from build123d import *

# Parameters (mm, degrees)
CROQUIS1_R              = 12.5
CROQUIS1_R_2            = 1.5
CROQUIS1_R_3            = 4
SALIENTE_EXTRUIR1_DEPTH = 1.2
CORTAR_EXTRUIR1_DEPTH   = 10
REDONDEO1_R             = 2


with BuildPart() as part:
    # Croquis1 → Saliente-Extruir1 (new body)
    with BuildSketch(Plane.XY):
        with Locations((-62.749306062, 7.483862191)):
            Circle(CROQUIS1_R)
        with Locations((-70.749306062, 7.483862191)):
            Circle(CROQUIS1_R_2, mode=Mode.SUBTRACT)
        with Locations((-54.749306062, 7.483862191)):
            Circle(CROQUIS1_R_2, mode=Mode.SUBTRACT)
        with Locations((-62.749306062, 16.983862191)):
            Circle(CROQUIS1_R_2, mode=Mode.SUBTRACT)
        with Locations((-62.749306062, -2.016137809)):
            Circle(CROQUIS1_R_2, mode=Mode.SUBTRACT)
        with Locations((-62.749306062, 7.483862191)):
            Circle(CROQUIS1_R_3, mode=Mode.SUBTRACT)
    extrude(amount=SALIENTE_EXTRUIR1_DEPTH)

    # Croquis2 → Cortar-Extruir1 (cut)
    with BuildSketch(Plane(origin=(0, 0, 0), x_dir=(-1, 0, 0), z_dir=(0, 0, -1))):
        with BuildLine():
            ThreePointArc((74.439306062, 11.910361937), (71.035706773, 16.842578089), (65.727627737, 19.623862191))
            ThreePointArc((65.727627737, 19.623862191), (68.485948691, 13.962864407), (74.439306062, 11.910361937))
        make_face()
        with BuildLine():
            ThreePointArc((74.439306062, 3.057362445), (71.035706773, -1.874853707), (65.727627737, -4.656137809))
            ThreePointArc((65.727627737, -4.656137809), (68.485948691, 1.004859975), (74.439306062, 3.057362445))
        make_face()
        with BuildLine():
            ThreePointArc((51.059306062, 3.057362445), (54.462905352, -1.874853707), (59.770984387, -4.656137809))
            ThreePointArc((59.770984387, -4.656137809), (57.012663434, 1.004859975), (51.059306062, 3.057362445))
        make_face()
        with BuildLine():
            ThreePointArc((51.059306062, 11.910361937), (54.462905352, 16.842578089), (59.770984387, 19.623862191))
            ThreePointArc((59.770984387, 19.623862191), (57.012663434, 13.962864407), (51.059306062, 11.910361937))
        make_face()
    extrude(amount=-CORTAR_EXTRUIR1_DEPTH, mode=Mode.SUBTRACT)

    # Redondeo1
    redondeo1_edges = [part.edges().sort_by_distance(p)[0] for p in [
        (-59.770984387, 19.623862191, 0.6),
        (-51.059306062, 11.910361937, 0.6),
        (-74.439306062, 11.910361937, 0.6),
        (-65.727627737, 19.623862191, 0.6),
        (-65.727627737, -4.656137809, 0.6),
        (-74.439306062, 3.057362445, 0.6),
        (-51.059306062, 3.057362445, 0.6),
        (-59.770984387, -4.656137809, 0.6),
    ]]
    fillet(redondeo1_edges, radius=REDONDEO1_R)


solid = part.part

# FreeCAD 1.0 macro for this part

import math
import FreeCAD as App
import Part
import Sketcher
from FreeCAD import Vector


def edges_at(feature, points):
    """Names of the edges that pass closest to the given points."""
    edges = feature.Shape.Edges
    near = lambda p: min(range(len(edges)), key=lambda i: edges[i].distToShape(Part.Vertex(*p))[0])
    return sorted({f"Edge{near(p) + 1}" for p in points})

doc = App.newDocument("Part")
body = doc.addObject("PartDesign::Body", "Body")

# Sketch on XY plane
sketch1 = body.newObject("Sketcher::SketchObject", "Sketch")
sketch1.AttachmentSupport = (doc.getObject("XY_Plane"), [""])
sketch1.MapMode = "FlatFace"
sketch1.addGeometry(Part.Circle(Vector(-62.749306, 7.483862, 0), Vector(0, 0, 1), 12.5), False)
sketch1.addGeometry(Part.Circle(Vector(-62.749306, -2.016138, 0), Vector(0, 0, 1), 1.5), False)
sketch1.addGeometry(Part.Circle(Vector(-70.749306, 7.483862, 0), Vector(0, 0, 1), 1.5), False)
sketch1.addGeometry(Part.Circle(Vector(-62.749306, 7.483862, 0), Vector(0, 0, 1), 4), False)
sketch1.addGeometry(Part.Circle(Vector(-54.749306, 7.483862, 0), Vector(0, 0, 1), 1.5), False)
sketch1.addGeometry(Part.Circle(Vector(-62.749306, 16.983862, 0), Vector(0, 0, 1), 1.5), False)
sketch1.addConstraint(Sketcher.Constraint("Coincident", 3, 3, 0, 3))
sketch1.addConstraint(Sketcher.Constraint("Equal", 1, 2))
sketch1.addConstraint(Sketcher.Constraint("Equal", 2, 4))
sketch1.addConstraint(Sketcher.Constraint("Equal", 4, 5))
sketch1.addConstraint(Sketcher.Constraint("Horizontal", 0, 3, 2, 3))
sketch1.addConstraint(Sketcher.Constraint("Horizontal", 3, 3, 4, 3))
sketch1.addConstraint(Sketcher.Constraint("Vertical", 0, 3, 1, 3))
sketch1.addConstraint(Sketcher.Constraint("Vertical", 3, 3, 5, 3))
sketch1.addConstraint(Sketcher.Constraint("Diameter", 0, 25.0))
sketch1.addConstraint(Sketcher.Constraint("Diameter", 1, 3.0))
sketch1.addConstraint(Sketcher.Constraint("Diameter", 3, 8.0))
sketch1.addConstraint(Sketcher.Constraint("DistanceX", 2, 3, 0, 3, 8.0))
sketch1.addConstraint(Sketcher.Constraint("DistanceX", 0, 3, 4, 3, 8.0))
sketch1.addConstraint(Sketcher.Constraint("DistanceY", 1, 3, 5, 3, 19.0))
sketch1.addConstraint(Sketcher.Constraint("DistanceY", 1, 3, 0, 3, 9.5))
sketch1.addConstraint(Sketcher.Constraint("DistanceX", 0, 3, -1, 1, 62.749306))
sketch1.addConstraint(Sketcher.Constraint("DistanceY", -1, 1, 0, 3, 7.483862))
pad1 = body.newObject("PartDesign::Pad", "Pad")
pad1.Profile = sketch1
pad1.Length = 1.2

# Sketch on XY plane
sketch2 = body.newObject("Sketcher::SketchObject", "Sketch001")
sketch2.AttachmentSupport = (doc.getObject("XY_Plane"), [""])
sketch2.MapMode = "FlatFace"
sketch2.addGeometry(Part.ArcOfCircle(Part.Circle(Vector(-62.749306, 7.483862, 0), Vector(0, 0, 1), 12.5), math.radians(103.784205), math.radians(159.26048)), False)
sketch2.addGeometry(Part.ArcOfCircle(Part.Circle(Vector(-73.940217, 20.122951, 0), Vector(0, 0, 1), 8.22774), math.radians(-93.477657), math.radians(-3.477657)), False)
sketch2.addGeometry(Part.ArcOfCircle(Part.Circle(Vector(-62.749306, 7.483862, 0), Vector(0, 0, 1), 12.5), math.radians(-159.26048), math.radians(-103.784205)), False)
sketch2.addGeometry(Part.ArcOfCircle(Part.Circle(Vector(-73.940217, -5.155227, 0), Vector(0, 0, 1), 8.22774), math.radians(3.477657), math.radians(93.477657)), False)
sketch2.addGeometry(Part.ArcOfCircle(Part.Circle(Vector(-62.749306, 7.483862, 0), Vector(0, 0, 1), 12.5), math.radians(-76.215795), math.radians(-20.73952)), False)
sketch2.addGeometry(Part.ArcOfCircle(Part.Circle(Vector(-51.558395, -5.155227, 0), Vector(0, 0, 1), 8.22774), math.radians(86.522343), math.radians(176.522343)), False)
sketch2.addGeometry(Part.ArcOfCircle(Part.Circle(Vector(-62.749306, 7.483862, 0), Vector(0, 0, 1), 12.5), math.radians(20.73952), math.radians(76.215795)), False)
sketch2.addGeometry(Part.ArcOfCircle(Part.Circle(Vector(-51.558395, 20.122951, 0), Vector(0, 0, 1), 8.22774), math.radians(-176.522343), math.radians(-86.522343)), False)
sketch2.addConstraint(Sketcher.Constraint("Coincident", 0, 1, 1, 2))
sketch2.addConstraint(Sketcher.Constraint("Coincident", 1, 1, 0, 2))
sketch2.addConstraint(Sketcher.Constraint("Coincident", 2, 1, 3, 2))
sketch2.addConstraint(Sketcher.Constraint("Coincident", 3, 1, 2, 2))
sketch2.addConstraint(Sketcher.Constraint("Coincident", 4, 1, 5, 2))
sketch2.addConstraint(Sketcher.Constraint("Coincident", 5, 1, 4, 2))
sketch2.addConstraint(Sketcher.Constraint("Coincident", 6, 1, 7, 2))
sketch2.addConstraint(Sketcher.Constraint("Coincident", 7, 1, 6, 2))
sketch2.addConstraint(Sketcher.Constraint("Coincident", 2, 3, 0, 3))
sketch2.addConstraint(Sketcher.Constraint("Coincident", 4, 3, 0, 3))
sketch2.addConstraint(Sketcher.Constraint("Coincident", 6, 3, 0, 3))
sketch2.addConstraint(Sketcher.Constraint("Equal", 0, 2))
sketch2.addConstraint(Sketcher.Constraint("Equal", 1, 3))
sketch2.addConstraint(Sketcher.Constraint("Equal", 2, 4))
sketch2.addConstraint(Sketcher.Constraint("Equal", 3, 5))
sketch2.addConstraint(Sketcher.Constraint("Equal", 4, 6))
sketch2.addConstraint(Sketcher.Constraint("Equal", 5, 7))
sketch2.addConstraint(Sketcher.Constraint("Horizontal", 3, 3, 5, 3))
sketch2.addConstraint(Sketcher.Constraint("Horizontal", 1, 3, 7, 3))
sketch2.addConstraint(Sketcher.Constraint("Horizontal", 3, 1, 4, 1))
sketch2.addConstraint(Sketcher.Constraint("Horizontal", 1, 1, 6, 1))
sketch2.addConstraint(Sketcher.Constraint("Vertical", 1, 3, 3, 3))
sketch2.addConstraint(Sketcher.Constraint("Vertical", 1, 1, 2, 1))
sketch2.addConstraint(Sketcher.Constraint("Radius", 0, 12.5))
sketch2.addConstraint(Sketcher.Constraint("Radius", 1, 8.22774))
sketch2.addConstraint(Sketcher.Constraint("DistanceY", 4, 3, 0, 1, 12.14))
sketch2.addConstraint(Sketcher.Constraint("DistanceX", 1, 1, 4, 3, 11.69))
sketch2.addConstraint(Sketcher.Constraint("DistanceY", -1, 1, 1, 3, 20.122951))
sketch2.addConstraint(Sketcher.Constraint("DistanceX", 0, 3, -1, 1, 62.749306))
pocket1 = body.newObject("PartDesign::Pocket", "Pocket")
pocket1.Profile = sketch2
pocket1.Length = 10
pocket1.Reversed = True
doc.recompute()

fillet = body.newObject("PartDesign::Fillet", "Fillet")
fillet.Base = (pocket1, edges_at(pocket1, [
    (-59.771, 19.624, 0.6),
    (-51.059, 11.91, 0.6),
    (-74.439, 11.91, 0.6),
    (-65.728, 19.624, 0.6),
    (-65.728, -4.656, 0.6),
    (-74.439, 3.057, 0.6),
    (-51.059, 3.057, 0.6),
    (-59.771, -4.656, 0.6),
]))
fillet.Radius = 2

doc.recompute()
